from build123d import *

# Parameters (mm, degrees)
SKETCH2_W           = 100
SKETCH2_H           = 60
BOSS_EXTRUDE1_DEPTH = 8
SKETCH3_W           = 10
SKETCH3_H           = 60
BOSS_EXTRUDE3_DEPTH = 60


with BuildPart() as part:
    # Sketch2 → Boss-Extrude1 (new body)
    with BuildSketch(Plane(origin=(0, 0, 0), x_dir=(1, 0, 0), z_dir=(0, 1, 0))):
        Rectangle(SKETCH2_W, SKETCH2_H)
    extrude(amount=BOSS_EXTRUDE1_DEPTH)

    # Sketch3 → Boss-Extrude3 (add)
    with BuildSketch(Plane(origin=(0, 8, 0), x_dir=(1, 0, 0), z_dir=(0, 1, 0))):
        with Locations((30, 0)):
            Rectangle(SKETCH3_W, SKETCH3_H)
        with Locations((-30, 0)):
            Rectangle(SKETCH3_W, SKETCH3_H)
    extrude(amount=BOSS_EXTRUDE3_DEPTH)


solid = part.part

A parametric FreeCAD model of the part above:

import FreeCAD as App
import Part
import Sketcher
from FreeCAD import Vector

doc = App.newDocument("Part")
params = doc.addObject("Spreadsheet::Sheet", "Params")
for row, (alias, value) in enumerate([
    ("sketch1_width", "100 mm"),
    ("sketch1_height", "60 mm"),
    ("pad1_length", "8 mm"),
    ("sketch2_width", "10 mm"),
    ("sketch2_height", "60 mm"),
    ("pad2_length", "60 mm"),
], start=1):
    params.set(f"A{row}", alias)
    params.set(f"B{row}", "=" + value)
    params.setAlias(f"B{row}", alias)

body = doc.addObject("PartDesign::Body", "Body")

# Sketch on XZ plane
sketch1 = body.newObject("Sketcher::SketchObject", "Sketch")
sketch1.AttachmentSupport = (doc.getObject("XZ_Plane"), [""])
sketch1.MapMode = "FlatFace"
sketch1.addGeometry([
    Part.LineSegment(Vector(-50, -30, 0), Vector(-50, 30, 0)),
    Part.LineSegment(Vector(-50, 30, 0), Vector(50, 30, 0)),
    Part.LineSegment(Vector(50, 30, 0), Vector(50, -30, 0)),
    Part.LineSegment(Vector(50, -30, 0), Vector(-50, -30, 0)),
], False)
sketch1.addConstraint([
    Sketcher.Constraint("Coincident", 0, 2, 1, 1),
    Sketcher.Constraint("Coincident", 1, 2, 2, 1),
    Sketcher.Constraint("Coincident", 2, 2, 3, 1),
    Sketcher.Constraint("Coincident", 3, 2, 0, 1),
    Sketcher.Constraint("Vertical", 0),
    Sketcher.Constraint("Horizontal", 1),
    Sketcher.Constraint("Vertical", 2),
    Sketcher.Constraint("Horizontal", 3),
    Sketcher.Constraint("Symmetric", 0, 2, 2, 2, -1, 1),
    Sketcher.Constraint("DistanceX", 1, 1, 1, 2, 100.0),
    Sketcher.Constraint("DistanceY", 0, 1, 0, 2, 60.0),
])
sketch1.setExpression("Constraints[9]", "Params.sketch1_width")
sketch1.setExpression("Constraints[10]", "Params.sketch1_height")
pad1 = body.newObject("PartDesign::Pad", "Pad")
pad1.Profile = sketch1
pad1.setExpression("Length", "Params.pad1_length")
pad1.Reversed = True

# Sketch on XZ plane
sketch2 = body.newObject("Sketcher::SketchObject", "Sketch001")
sketch2.AttachmentSupport = (doc.getObject("XZ_Plane"), [""])
sketch2.MapMode = "FlatFace"
sketch2.AttachmentOffset = App.Placement(Vector(0, 0, -8), App.Rotation())
sketch2.addGeometry([
    Part.LineSegment(Vector(25, -30, 0), Vector(25, 30, 0)),  # 0
    Part.LineSegment(Vector(25, 30, 0), Vector(35, 30, 0)),  # 1
    Part.LineSegment(Vector(35, 30, 0), Vector(35, -30, 0)),  # 2
    Part.LineSegment(Vector(35, -30, 0), Vector(25, -30, 0)),  # 3
    Part.LineSegment(Vector(-35, -30, 0), Vector(-35, 30, 0)),  # 4
    Part.LineSegment(Vector(-35, 30, 0), Vector(-25, 30, 0)),  # 5
    Part.LineSegment(Vector(-25, 30, 0), Vector(-25, -30, 0)),  # 6
    Part.LineSegment(Vector(-25, -30, 0), Vector(-35, -30, 0)),  # 7
], False)
sketch2.addConstraint([
    Sketcher.Constraint("Coincident", 0, 2, 1, 1),
    Sketcher.Constraint("Coincident", 1, 2, 2, 1),
    Sketcher.Constraint("Coincident", 2, 2, 3, 1),
    Sketcher.Constraint("Coincident", 3, 2, 0, 1),
    Sketcher.Constraint("Coincident", 4, 2, 5, 1),
    Sketcher.Constraint("Coincident", 5, 2, 6, 1),
    Sketcher.Constraint("Coincident", 6, 2, 7, 1),
    Sketcher.Constraint("Coincident", 7, 2, 4, 1),
    Sketcher.Constraint("Vertical", 0),
    Sketcher.Constraint("Horizontal", 1),
    Sketcher.Constraint("Vertical", 2),
    Sketcher.Constraint("Horizontal", 3),
    Sketcher.Constraint("Vertical", 4),
    Sketcher.Constraint("Horizontal", 5),
    Sketcher.Constraint("Vertical", 6),
    Sketcher.Constraint("Horizontal", 7),
    Sketcher.Constraint("Symmetric", 2, 2, 4, 2, -1, 1),
    Sketcher.Constraint("Symmetric", 0, 2, 6, 2, -1, 1),
    Sketcher.Constraint("Horizontal", 1, 2, 4, 2),
    Sketcher.Constraint("DistanceX", 1, 1, 1, 2, 10.0),
    Sketcher.Constraint("DistanceY", 0, 1, 0, 2, 60.0),
    Sketcher.Constraint("DistanceX", -1, 1, 0, 2, 25.0),
])
sketch2.setExpression("Constraints[19]", "Params.sketch2_width")
sketch2.setExpression("Constraints[20]", "Params.sketch2_height")
pad2 = body.newObject("PartDesign::Pad", "Pad001")
pad2.Profile = sketch2
pad2.setExpression("Length", "Params.pad2_length")
pad2.Reversed = True

doc.recompute()
